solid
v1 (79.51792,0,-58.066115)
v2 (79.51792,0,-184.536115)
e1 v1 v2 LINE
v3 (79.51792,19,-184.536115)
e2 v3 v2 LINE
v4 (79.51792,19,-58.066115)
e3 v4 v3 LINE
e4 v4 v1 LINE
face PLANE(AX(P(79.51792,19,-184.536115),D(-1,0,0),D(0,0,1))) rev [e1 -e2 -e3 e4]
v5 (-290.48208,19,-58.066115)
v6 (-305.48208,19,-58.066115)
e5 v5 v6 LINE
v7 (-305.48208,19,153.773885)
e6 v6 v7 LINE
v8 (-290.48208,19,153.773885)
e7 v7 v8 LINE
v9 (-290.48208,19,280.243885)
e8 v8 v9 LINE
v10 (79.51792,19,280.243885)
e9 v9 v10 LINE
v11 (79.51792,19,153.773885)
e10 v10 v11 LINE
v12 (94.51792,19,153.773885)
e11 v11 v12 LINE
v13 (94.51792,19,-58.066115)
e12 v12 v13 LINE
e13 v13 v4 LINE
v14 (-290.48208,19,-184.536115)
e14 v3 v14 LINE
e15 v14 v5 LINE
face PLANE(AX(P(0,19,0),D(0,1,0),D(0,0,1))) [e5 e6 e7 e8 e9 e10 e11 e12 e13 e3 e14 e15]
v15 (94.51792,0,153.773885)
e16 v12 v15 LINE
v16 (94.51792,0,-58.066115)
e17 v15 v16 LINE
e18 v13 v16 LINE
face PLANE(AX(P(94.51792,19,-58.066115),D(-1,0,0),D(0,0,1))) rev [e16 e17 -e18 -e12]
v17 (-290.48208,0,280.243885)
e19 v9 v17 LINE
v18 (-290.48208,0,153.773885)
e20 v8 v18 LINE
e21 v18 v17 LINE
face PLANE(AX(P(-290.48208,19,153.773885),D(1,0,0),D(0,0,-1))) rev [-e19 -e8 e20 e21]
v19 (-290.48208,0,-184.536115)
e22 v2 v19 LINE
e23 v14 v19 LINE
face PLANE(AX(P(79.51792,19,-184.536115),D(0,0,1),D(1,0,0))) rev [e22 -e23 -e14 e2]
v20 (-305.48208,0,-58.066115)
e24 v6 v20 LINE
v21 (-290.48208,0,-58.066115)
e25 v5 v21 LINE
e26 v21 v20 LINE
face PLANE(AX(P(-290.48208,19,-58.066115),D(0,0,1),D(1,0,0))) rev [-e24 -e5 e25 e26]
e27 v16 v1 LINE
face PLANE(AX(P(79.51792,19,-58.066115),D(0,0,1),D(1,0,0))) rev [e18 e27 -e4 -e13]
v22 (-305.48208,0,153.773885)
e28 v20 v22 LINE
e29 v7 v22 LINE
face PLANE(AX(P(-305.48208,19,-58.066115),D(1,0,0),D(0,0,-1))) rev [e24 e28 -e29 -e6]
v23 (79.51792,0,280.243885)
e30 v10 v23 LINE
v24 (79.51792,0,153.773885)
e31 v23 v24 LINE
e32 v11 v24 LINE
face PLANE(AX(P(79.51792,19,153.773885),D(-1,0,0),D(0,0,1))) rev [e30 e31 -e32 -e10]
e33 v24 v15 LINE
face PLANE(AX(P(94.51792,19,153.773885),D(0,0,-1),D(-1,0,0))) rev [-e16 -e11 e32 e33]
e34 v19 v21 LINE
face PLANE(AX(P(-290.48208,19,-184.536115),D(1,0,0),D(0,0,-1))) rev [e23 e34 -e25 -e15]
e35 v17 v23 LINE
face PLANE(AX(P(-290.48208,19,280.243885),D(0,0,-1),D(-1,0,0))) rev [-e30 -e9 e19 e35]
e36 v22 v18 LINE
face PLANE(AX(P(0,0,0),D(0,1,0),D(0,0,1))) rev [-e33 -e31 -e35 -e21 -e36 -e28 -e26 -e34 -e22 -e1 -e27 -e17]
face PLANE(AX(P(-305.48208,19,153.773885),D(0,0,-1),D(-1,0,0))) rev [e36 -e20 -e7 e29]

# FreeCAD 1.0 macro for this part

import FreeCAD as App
import Part
import Sketcher


def add_polygon(sketch, points):
    """Adds a closed chain of lines whose ends are joined by coincident constraints."""
    first, n = sketch.GeometryCount, len(points)
    for a, b in zip(points, points[1:] + points[:1]):
        sketch.addGeometry(Part.LineSegment(App.Vector(*a, 0), App.Vector(*b, 0)), False)
    for i in range(n):
        sketch.addConstraint(Sketcher.Constraint("Coincident", first + i, 2, first + (i + 1) % n, 1))

doc = App.newDocument("Part")
body = doc.addObject("PartDesign::Body", "Body")

# Sketch on XZ plane
sketch1 = body.newObject("Sketcher::SketchObject", "Sketch")
sketch1.AttachmentSupport = (doc.getObject("XZ_Plane"), [""])
sketch1.MapMode = "FlatFace"
add_polygon(sketch1, [(-290, -185), (-290, -58), (-305, -58), (-305, 154), (-290, 154), (-290, 280), (80, 280), (80, 154), (95, 154), (95, -58), (80, -58), (80, -185)])  # lines 0-11
sketch1.addConstraint([
    Sketcher.Constraint("Vertical", 0),
    Sketcher.Constraint("Horizontal", 1),
    Sketcher.Constraint("Vertical", 2),
    Sketcher.Constraint("Horizontal", 3),
    Sketcher.Constraint("Vertical", 4),
    Sketcher.Constraint("Horizontal", 5),
    Sketcher.Constraint("Vertical", 6),
    Sketcher.Constraint("Horizontal", 7),
    Sketcher.Constraint("Vertical", 8),
    Sketcher.Constraint("Horizontal", 9),
    Sketcher.Constraint("Vertical", 10),
    Sketcher.Constraint("Horizontal", 11),
    Sketcher.Constraint("Horizontal", 3, 2, 6, 2),
    Sketcher.Constraint("Horizontal", 1, 2, 8, 2),
    Sketcher.Constraint("Vertical", 0, 2, 3, 2),
    Sketcher.Constraint("Vertical", 6, 2, 9, 2),
    Sketcher.Constraint("Equal", 3, 7),
    Sketcher.Constraint("Equal", 0, 4),
    Sketcher.Constraint("DistanceX", 1, 2, 1, 1, 15.0),
    Sketcher.Constraint("DistanceX", 5, 1, 5, 2, 370.0),
    Sketcher.Constraint("DistanceY", 0, 1, 0, 2, 126.47),
    Sketcher.Constraint("DistanceY", 2, 1, 2, 2, 211.84),
    Sketcher.Constraint("DistanceX", 0, 2, -1, 1, 290.48208),
    Sketcher.Constraint("DistanceY", 0, 2, -1, 1, 58.066115),
])
pad1 = body.newObject("PartDesign::Pad", "Pad")
pad1.Profile = sketch1
pad1.Length = 19
pad1.Reversed = True

doc.recompute()
